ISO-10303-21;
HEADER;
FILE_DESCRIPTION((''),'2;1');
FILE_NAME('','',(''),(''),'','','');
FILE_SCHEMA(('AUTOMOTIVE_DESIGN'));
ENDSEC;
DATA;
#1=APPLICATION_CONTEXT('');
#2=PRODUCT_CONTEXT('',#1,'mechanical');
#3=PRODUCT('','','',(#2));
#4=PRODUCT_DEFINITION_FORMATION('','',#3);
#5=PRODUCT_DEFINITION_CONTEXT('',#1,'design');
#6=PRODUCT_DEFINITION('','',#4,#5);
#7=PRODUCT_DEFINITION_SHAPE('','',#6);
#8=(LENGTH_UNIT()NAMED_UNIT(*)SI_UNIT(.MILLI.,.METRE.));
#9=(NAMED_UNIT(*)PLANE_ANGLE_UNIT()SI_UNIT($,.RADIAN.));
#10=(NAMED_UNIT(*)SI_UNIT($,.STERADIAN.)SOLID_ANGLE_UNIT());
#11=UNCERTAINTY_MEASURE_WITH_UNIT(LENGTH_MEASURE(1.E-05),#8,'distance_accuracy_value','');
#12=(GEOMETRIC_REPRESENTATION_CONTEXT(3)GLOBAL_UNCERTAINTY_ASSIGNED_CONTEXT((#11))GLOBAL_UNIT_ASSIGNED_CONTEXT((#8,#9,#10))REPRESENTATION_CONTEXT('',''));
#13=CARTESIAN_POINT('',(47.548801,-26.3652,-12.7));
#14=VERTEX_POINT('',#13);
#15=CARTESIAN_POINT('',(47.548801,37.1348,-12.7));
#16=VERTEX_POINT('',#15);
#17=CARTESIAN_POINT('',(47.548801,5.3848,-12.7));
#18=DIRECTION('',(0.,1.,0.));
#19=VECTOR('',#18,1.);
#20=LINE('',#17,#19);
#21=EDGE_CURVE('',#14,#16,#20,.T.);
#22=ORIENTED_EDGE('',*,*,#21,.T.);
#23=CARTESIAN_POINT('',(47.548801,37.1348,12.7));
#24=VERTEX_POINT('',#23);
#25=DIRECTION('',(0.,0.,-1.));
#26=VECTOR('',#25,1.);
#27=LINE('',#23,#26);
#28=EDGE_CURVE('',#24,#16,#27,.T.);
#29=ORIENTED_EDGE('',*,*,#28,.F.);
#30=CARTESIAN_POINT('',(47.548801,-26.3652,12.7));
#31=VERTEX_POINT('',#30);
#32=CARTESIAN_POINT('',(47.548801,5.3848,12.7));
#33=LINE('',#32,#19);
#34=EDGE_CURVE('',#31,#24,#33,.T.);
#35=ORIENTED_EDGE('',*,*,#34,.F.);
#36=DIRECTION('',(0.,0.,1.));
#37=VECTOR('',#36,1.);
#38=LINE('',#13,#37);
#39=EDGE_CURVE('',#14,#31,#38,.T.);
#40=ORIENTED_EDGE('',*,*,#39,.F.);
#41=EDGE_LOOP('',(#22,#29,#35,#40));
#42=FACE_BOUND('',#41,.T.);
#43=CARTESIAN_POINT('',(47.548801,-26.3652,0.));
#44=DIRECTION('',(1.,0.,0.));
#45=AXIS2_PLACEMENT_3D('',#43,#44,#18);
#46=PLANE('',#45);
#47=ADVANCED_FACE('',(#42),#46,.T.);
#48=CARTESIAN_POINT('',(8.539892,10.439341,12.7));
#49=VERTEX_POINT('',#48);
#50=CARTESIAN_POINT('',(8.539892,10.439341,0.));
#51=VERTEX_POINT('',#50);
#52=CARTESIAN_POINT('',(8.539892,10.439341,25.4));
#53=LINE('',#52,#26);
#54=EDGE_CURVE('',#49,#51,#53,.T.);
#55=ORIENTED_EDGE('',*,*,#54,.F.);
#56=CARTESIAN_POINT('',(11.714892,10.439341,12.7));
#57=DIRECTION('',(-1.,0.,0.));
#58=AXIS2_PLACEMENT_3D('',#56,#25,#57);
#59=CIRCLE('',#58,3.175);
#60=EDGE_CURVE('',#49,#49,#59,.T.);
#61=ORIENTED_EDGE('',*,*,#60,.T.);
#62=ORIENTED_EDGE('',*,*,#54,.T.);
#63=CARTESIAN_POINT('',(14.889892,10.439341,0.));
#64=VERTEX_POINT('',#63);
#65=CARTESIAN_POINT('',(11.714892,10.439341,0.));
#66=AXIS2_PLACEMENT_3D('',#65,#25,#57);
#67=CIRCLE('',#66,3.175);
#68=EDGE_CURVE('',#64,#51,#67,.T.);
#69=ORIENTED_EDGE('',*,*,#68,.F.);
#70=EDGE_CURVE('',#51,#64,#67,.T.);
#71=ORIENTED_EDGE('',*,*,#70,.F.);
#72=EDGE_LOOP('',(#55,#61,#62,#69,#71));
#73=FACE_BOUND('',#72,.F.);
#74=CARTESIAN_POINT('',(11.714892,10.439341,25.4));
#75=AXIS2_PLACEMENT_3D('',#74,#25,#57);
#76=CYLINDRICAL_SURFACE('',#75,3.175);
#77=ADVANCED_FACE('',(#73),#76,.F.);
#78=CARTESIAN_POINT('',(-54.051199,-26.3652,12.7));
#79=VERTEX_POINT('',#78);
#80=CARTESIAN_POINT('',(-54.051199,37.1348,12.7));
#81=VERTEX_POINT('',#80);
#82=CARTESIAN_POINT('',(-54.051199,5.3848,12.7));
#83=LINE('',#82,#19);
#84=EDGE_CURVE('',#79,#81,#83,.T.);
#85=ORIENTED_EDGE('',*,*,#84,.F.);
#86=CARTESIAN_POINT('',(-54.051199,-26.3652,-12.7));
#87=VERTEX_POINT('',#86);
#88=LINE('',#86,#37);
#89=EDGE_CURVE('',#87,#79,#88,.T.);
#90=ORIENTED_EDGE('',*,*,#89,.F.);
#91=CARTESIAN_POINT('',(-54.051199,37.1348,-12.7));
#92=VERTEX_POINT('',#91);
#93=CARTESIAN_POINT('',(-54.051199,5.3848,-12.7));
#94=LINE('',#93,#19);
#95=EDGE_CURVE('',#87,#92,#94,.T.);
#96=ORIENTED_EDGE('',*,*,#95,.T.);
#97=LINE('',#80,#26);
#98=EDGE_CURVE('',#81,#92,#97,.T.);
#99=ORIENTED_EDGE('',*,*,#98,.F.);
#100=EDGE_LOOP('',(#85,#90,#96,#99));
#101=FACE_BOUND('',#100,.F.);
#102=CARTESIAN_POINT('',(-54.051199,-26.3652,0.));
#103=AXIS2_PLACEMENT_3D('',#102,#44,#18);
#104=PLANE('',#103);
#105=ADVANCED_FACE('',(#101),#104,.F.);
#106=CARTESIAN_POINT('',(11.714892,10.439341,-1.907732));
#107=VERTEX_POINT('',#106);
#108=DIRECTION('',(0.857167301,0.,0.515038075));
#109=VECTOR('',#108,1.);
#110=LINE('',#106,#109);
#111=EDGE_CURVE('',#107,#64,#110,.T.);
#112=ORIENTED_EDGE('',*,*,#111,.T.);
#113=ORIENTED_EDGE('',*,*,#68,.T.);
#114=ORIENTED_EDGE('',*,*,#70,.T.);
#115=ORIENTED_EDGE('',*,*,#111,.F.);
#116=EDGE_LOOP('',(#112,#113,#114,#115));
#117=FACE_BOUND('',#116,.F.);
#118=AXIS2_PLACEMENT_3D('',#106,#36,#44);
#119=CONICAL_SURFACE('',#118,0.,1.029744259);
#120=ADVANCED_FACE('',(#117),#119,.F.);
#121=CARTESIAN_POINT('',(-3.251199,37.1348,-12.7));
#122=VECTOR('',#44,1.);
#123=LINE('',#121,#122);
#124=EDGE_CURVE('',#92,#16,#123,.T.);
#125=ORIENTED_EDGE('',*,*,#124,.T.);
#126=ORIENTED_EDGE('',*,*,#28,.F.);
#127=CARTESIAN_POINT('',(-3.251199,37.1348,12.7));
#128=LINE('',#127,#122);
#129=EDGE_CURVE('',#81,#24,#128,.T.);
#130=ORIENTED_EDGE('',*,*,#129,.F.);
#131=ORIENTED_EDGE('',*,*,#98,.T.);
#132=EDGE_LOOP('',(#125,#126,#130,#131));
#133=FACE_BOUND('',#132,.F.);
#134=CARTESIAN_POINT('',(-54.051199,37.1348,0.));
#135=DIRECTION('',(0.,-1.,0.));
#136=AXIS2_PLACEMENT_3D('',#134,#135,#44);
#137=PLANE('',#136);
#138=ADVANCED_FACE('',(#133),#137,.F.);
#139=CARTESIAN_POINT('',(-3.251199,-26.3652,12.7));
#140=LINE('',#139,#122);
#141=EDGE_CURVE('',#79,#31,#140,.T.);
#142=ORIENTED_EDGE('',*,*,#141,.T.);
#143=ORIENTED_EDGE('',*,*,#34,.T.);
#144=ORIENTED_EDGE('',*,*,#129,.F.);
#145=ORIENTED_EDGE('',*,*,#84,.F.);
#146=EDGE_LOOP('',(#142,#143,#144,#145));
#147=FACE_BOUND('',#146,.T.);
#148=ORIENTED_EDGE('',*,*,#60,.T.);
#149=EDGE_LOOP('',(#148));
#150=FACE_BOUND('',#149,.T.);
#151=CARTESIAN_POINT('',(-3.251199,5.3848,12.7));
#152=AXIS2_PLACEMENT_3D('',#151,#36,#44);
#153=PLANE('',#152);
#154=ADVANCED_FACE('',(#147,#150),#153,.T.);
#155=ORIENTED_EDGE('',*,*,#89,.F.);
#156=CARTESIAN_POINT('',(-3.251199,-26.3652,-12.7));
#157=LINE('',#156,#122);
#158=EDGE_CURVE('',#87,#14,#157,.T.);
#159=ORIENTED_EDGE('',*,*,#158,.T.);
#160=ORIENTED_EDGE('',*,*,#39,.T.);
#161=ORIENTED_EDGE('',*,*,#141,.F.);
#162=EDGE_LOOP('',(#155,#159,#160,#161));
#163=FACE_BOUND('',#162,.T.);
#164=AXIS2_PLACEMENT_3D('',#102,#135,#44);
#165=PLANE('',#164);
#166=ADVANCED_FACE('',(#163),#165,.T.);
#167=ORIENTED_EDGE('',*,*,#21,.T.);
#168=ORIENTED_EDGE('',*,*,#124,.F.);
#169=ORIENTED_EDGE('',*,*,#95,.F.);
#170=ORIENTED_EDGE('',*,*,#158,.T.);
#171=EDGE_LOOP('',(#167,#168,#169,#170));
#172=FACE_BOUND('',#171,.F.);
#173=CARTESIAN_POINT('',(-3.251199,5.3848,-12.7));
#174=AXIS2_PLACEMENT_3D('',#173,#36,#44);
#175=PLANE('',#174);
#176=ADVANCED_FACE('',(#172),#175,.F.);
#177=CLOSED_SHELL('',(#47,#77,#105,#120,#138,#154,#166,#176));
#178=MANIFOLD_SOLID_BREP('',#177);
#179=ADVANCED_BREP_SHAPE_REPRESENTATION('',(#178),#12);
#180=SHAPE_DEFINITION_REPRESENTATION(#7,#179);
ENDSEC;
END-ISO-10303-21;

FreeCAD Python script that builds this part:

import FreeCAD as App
import Part
import Sketcher
Q = App.Units.Quantity

doc = App.newDocument("Part")
params = doc.addObject("Spreadsheet::Sheet", "Params")
for row, (alias, value) in enumerate([
    ("sketch1_width", "4 in"),
    ("sketch1_height", "2.5 in"),
    ("pad1_length", "1 in"),
    ("sketch2_diameter", "0.25 in"),
    ("hole_diameter", "0.25 in"),
    ("hole_depth", "0.5 in"),
], start=1):
    params.set(f"A{row}", alias)
    params.set(f"B{row}", "=" + value)
    params.setAlias(f"B{row}", alias)

body = doc.addObject("PartDesign::Body", "Body")

sketch1 = doc.addObject("Sketcher::SketchObject", "Sketch")
body.addObject(sketch1)
sketch1.AttachmentSupport = (doc.XY_Plane, [""])
sketch1.MapMode = "FlatFace"
sketch1.addGeometry([
    Part.LineSegment(App.Vector(-54, 37, 0), App.Vector(-54, -26, 0)),
    Part.LineSegment(App.Vector(-54, -26, 0), App.Vector(48, -26, 0)),
    Part.LineSegment(App.Vector(48, -26, 0), App.Vector(48, 37, 0)),
    Part.LineSegment(App.Vector(48, 37, 0), App.Vector(-54, 37, 0)),
], False)
sketch1.addConstraint([
    Sketcher.Constraint("Coincident", 0, 2, 1, 1),
    Sketcher.Constraint("Coincident", 1, 2, 2, 1),
    Sketcher.Constraint("Coincident", 2, 2, 3, 1),
    Sketcher.Constraint("Coincident", 3, 2, 0, 1),
    Sketcher.Constraint("Vertical", 0),
    Sketcher.Constraint("Horizontal", 1),
    Sketcher.Constraint("Vertical", 2),
    Sketcher.Constraint("Horizontal", 3),
    Sketcher.Constraint("DistanceX", 1, 1, 1, 2, Q("4 in")),
    Sketcher.Constraint("DistanceY", 0, 2, 0, 1, Q("2.5 in")),
    Sketcher.Constraint("DistanceX", 0, 2, -1, 1, Q("2.128 in")),
    Sketcher.Constraint("DistanceY", 0, 2, -1, 1, Q("1.038 in")),
])
sketch1.setExpression("Constraints[8]", "Params.sketch1_width")
sketch1.setExpression("Constraints[9]", "Params.sketch1_height")
pad1 = doc.addObject("PartDesign::Pad", "Pad")
body.addObject(pad1)
pad1.Profile = sketch1
pad1.setExpression("Length", "Params.pad1_length")
pad1.Midplane = True

sketch2 = doc.addObject("Sketcher::SketchObject", "Sketch001")
body.addObject(sketch2)
sketch2.AttachmentSupport = (doc.XY_Plane, [""])
sketch2.MapMode = "FlatFace"
sketch2.AttachmentOffset = App.Placement(App.Vector(0, 0, 0.5 * 25.4), App.Rotation())
sketch2.addGeometry(Part.Circle(App.Vector(11.7, 10.4, 0), App.Vector(0, 0, 1), 3.2), False)
sketch2.addConstraint([
    Sketcher.Constraint("Diameter", 0, Q("0.25 in")),
    Sketcher.Constraint("DistanceY", -1, 1, 0, 3, 10.439341),
    Sketcher.Constraint("DistanceX", -1, 1, 0, 3, 11.714892),
])
sketch2.setExpression("Constraints[0]", "Params.sketch2_diameter")
doc.recompute()
hole = doc.addObject("PartDesign::Hole", "Hole")
body.addObject(hole)
hole.Profile = sketch2
hole.ThreadType = "None"
hole.setExpression("Diameter", "Params.hole_diameter")
hole.DepthType = "Dimension"
hole.setExpression("Depth", "Params.hole_depth")
hole.DrillPoint = "Angled"
hole.DrillPointAngle = 118

doc.recompute()
